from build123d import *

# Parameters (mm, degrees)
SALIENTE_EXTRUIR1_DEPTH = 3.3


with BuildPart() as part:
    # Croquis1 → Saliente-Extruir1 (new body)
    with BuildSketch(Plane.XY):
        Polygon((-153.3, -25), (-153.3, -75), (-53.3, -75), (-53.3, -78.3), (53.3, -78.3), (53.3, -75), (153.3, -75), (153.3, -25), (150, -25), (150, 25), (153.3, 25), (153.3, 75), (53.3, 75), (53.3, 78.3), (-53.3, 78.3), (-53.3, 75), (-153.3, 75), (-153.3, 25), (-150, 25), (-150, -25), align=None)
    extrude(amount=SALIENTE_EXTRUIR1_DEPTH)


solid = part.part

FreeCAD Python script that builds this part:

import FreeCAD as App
import Part
import Sketcher
from FreeCAD import Vector
Q = App.Units.Quantity


def add_polygon(sketch, points):
    """Adds a closed chain of lines whose ends are joined by coincident constraints."""
    first, n = sketch.GeometryCount, len(points)
    for a, b in zip(points, points[1:] + points[:1]):
        sketch.addGeometry(Part.LineSegment(App.Vector(*a, 0), App.Vector(*b, 0)), False)
    for i in range(n):
        sketch.addConstraint(Sketcher.Constraint("Coincident", first + i, 2, first + (i + 1) % n, 1))

doc = App.newDocument("Part")
body = doc.addObject("PartDesign::Body", "Body")

# Sketch on XY plane
sketch1 = body.newObject("Sketcher::SketchObject", "Sketch")
sketch1.AttachmentSupport = (doc.getObject("XY_Plane"), [""])
sketch1.MapMode = "FlatFace"
add_polygon(sketch1, [(-153.3, -25), (-153.3, -75), (-53.3, -75), (-53.3, -78.3), (53.3, -78.3), (53.3, -75), (153.3, -75), (153.3, -25), (150, -25), (150, 25), (153.3, 25), (153.3, 75), (53.3, 75), (53.3, 78.3), (-53.3, 78.3), (-53.3, 75), (-153.3, 75), (-153.3, 25), (-150, 25), (-150, -25)])  # lines 0-19
sketch1.addConstraint([
    Sketcher.Constraint("Vertical", 0),
    Sketcher.Constraint("Horizontal", 1),
    Sketcher.Constraint("Vertical", 2),
    Sketcher.Constraint("Horizontal", 3),
    Sketcher.Constraint("Vertical", 4),
    Sketcher.Constraint("Horizontal", 5),
    Sketcher.Constraint("Vertical", 6),
    Sketcher.Constraint("Horizontal", 7),
    Sketcher.Constraint("Vertical", 8),
    Sketcher.Constraint("Horizontal", 9),
    Sketcher.Constraint("Vertical", 10),
    Sketcher.Constraint("Horizontal", 11),
    Sketcher.Constraint("Vertical", 12),
    Sketcher.Constraint("Horizontal", 13),
    Sketcher.Constraint("Vertical", 14),
    Sketcher.Constraint("Horizontal", 15),
    Sketcher.Constraint("Vertical", 16),
    Sketcher.Constraint("Horizontal", 17),
    Sketcher.Constraint("Vertical", 18),
    Sketcher.Constraint("Horizontal", 19),
    Sketcher.Constraint("Symmetric", 0, 2, 10, 2, -1, 1),
    Sketcher.Constraint("Symmetric", 2, 2, 12, 2, -1, 1),
    Sketcher.Constraint("Symmetric", 4, 2, 14, 2, -1, 1),
    Sketcher.Constraint("Symmetric", 6, 2, 16, 2, -1, 1),
    Sketcher.Constraint("Symmetric", 8, 2, 18, 2, -1, 1),
    Sketcher.Constraint("Symmetric", 1, 2, 4, 2, -2),
    Sketcher.Constraint("Symmetric", 9, 2, 16, 2, -2),
    Sketcher.Constraint("Equal", 19, 2),
    Sketcher.Constraint("Equal", 6, 8),
    Sketcher.Constraint("DistanceX", 1, 1, 1, 2, Q("100 mm")),
    Sketcher.Constraint("DistanceY", 0, 2, 0, 1, Q("50 mm")),
    Sketcher.Constraint("DistanceX", 3, 1, 3, 2, Q("106.6 mm")),
    Sketcher.Constraint("DistanceX", 7, 2, 7, 1, Q("3.3 mm")),
])
pad1 = body.newObject("PartDesign::Pad", "Pad")
pad1.Profile = sketch1
pad1.Length = 3.3

doc.recompute()
